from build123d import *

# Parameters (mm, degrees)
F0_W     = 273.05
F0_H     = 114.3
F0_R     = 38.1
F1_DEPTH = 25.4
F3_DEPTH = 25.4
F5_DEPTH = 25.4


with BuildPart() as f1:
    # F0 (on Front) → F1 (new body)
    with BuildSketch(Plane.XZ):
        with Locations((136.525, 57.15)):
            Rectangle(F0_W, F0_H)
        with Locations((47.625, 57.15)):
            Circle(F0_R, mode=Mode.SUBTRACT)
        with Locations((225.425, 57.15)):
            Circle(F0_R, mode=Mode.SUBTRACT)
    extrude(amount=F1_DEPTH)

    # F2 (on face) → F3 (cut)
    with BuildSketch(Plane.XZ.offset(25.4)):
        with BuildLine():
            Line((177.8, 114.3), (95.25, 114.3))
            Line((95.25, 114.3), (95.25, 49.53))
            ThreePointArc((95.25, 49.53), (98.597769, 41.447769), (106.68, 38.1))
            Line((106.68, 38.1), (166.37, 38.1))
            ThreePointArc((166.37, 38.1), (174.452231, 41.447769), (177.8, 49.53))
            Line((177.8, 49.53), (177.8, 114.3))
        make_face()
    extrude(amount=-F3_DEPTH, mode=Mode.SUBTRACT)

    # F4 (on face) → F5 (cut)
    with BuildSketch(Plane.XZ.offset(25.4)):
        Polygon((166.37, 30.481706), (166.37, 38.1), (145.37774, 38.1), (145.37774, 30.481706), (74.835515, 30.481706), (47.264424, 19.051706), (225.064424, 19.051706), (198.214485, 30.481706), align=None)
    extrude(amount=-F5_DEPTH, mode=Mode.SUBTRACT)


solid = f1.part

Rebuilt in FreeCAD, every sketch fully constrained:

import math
import FreeCAD as App
import Part
import Sketcher
Q = App.Units.Quantity


def add_polygon(sketch, points):
    """Adds a closed chain of lines whose ends are joined by coincident constraints."""
    first, n = sketch.GeometryCount, len(points)
    for a, b in zip(points, points[1:] + points[:1]):
        sketch.addGeometry(Part.LineSegment(App.Vector(*a, 0), App.Vector(*b, 0)), False)
    for i in range(n):
        sketch.addConstraint(Sketcher.Constraint("Coincident", first + i, 2, first + (i + 1) % n, 1))

doc = App.newDocument("Part")
body = doc.addObject("PartDesign::Body", "Body")

sketch1 = doc.addObject("Sketcher::SketchObject", "Sketch")
body.addObject(sketch1)
sketch1.AttachmentSupport = (doc.XZ_Plane, [""])
sketch1.MapMode = "FlatFace"
add_polygon(sketch1, [(0, 114), (0, 0), (273, 0), (273, 114)])
sketch1.addGeometry(Part.Circle(App.Vector(48, 57, 0), App.Vector(0, 0, 1), 38), False)
sketch1.addGeometry(Part.Circle(App.Vector(225, 57, 0), App.Vector(0, 0, 1), 38), False)
sketch1.addConstraint([
    Sketcher.Constraint("Vertical", 0),
    Sketcher.Constraint("Horizontal", 1),
    Sketcher.Constraint("Vertical", 2),
    Sketcher.Constraint("Horizontal", 3),
    Sketcher.Constraint("Coincident", 0, 2, -1, 1),
    Sketcher.Constraint("Equal", 4, 5),
    Sketcher.Constraint("Horizontal", 4, 3, 5, 3),
    Sketcher.Constraint("Diameter", 4, Q("3 in")),
    Sketcher.Constraint("DistanceY", 0, 2, 0, 1, Q("4.5 in")),
    Sketcher.Constraint("DistanceX", 4, 3, 5, 3, Q("7 in")),
    Sketcher.Constraint("DistanceX", 1, 1, 1, 2, Q("10.75 in")),
    Sketcher.Constraint("DistanceY", -1, 1, 4, 3, Q("2.25 in")),
    Sketcher.Constraint("DistanceX", -1, 1, 4, 3, Q("1.875 in")),
])
pad1 = doc.addObject("PartDesign::Pad", "Pad")
body.addObject(pad1)
pad1.Profile = sketch1
pad1.Length = Q("1 in")

sketch2 = doc.addObject("Sketcher::SketchObject", "Sketch001")
body.addObject(sketch2)
sketch2.AttachmentSupport = (doc.XZ_Plane, [""])
sketch2.MapMode = "FlatFace"
sketch2.AttachmentOffset = App.Placement(App.Vector(0, 0, 1 * 25.4), App.Rotation())
sketch2.addGeometry([
    Part.LineSegment(App.Vector(178, 114, 0), App.Vector(95, 114, 0)),
    Part.LineSegment(App.Vector(95, 114, 0), App.Vector(95, 50, 0)),
    Part.ArcOfCircle(Part.Circle(App.Vector(107, 50, 0), App.Vector(0, 0, 1), 11), math.radians(180), math.radians(270)),
    Part.LineSegment(App.Vector(107, 38, 0), App.Vector(166, 38, 0)),
    Part.ArcOfCircle(Part.Circle(App.Vector(166, 50, 0), App.Vector(0, 0, 1), 11), math.radians(-90), math.radians(0)),
    Part.LineSegment(App.Vector(178, 50, 0), App.Vector(178, 114, 0)),
], False)
sketch2.addConstraint([
    Sketcher.Constraint("Coincident", 0, 2, 1, 1),
    Sketcher.Constraint("Tangent", 1, 2, 2, 1),
    Sketcher.Constraint("Tangent", 2, 2, 3, 1),
    Sketcher.Constraint("Tangent", 3, 2, 4, 1),
    Sketcher.Constraint("Tangent", 4, 2, 5, 1),
    Sketcher.Constraint("Coincident", 5, 2, 0, 1),
    Sketcher.Constraint("Horizontal", 0),
    Sketcher.Constraint("Vertical", 1),
    Sketcher.Constraint("Horizontal", 3),
    Sketcher.Constraint("Vertical", 5),
    Sketcher.Constraint("Equal", 2, 4),
    Sketcher.Constraint("Radius", 2, Q("0.4499999 in")),
    Sketcher.Constraint("DistanceX", -1, 1, 4, 2, Q("7 in")),
    Sketcher.Constraint("DistanceY", 2, 2, 0, 2, Q("3 in")),
    Sketcher.Constraint("DistanceX", 0, 2, 0, 1, Q("3.25 in")),
    Sketcher.Constraint("DistanceY", -1, 1, 0, 2, Q("4.5 in")),
])
pocket1 = doc.addObject("PartDesign::Pocket", "Pocket")
body.addObject(pocket1)
pocket1.Profile = sketch2
pocket1.Length = Q("1 in")

sketch3 = doc.addObject("Sketcher::SketchObject", "Sketch002")
body.addObject(sketch3)
sketch3.AttachmentSupport = (doc.XZ_Plane, [""])
sketch3.MapMode = "FlatFace"
sketch3.AttachmentOffset = App.Placement(App.Vector(0, 0, 1 * 25.4), App.Rotation())
add_polygon(sketch3, [(166, 30), (166, 38), (145, 38), (145, 30), (75, 30), (47, 19), (225, 19), (198, 30)])
sketch3.addConstraint([
    Sketcher.Constraint("Vertical", 0),
    Sketcher.Constraint("Horizontal", 1),
    Sketcher.Constraint("Vertical", 2),
    Sketcher.Constraint("Horizontal", 3),
    Sketcher.Constraint("Horizontal", 5),
    Sketcher.Constraint("Horizontal", 7),
    Sketcher.Constraint("Horizontal", 3, 2, 6, 2),
    Sketcher.Constraint("DistanceX", 5, 1, 5, 2, Q("7 in")),
    Sketcher.Constraint("DistanceY", -1, 1, 0, 2, Q("1.5 in")),
    Sketcher.Constraint("DistanceX", -1, 1, 0, 2, Q("6.55 in")),
    Sketcher.Constraint("DistanceY", 4, 2, 3, 2, Q("0.45 in")),
    Sketcher.Constraint("DistanceX", 1, 2, 1, 1, Q("20.99226 mm")),
    Sketcher.Constraint("Distance", 4, Q("29.84644 mm")),
    Sketcher.Constraint("Distance", 6, Q("29.181572 mm")),
    Sketcher.Constraint("DistanceX", 3, 2, 3, 1, Q("70.542225 mm")),
    Sketcher.Constraint("DistanceY", 0, 1, 0, 2, Q("7.618294 mm")),
])
pocket2 = doc.addObject("PartDesign::Pocket", "Pocket001")
body.addObject(pocket2)
pocket2.Profile = sketch3
pocket2.Length = Q("1 in")

doc.recompute()
